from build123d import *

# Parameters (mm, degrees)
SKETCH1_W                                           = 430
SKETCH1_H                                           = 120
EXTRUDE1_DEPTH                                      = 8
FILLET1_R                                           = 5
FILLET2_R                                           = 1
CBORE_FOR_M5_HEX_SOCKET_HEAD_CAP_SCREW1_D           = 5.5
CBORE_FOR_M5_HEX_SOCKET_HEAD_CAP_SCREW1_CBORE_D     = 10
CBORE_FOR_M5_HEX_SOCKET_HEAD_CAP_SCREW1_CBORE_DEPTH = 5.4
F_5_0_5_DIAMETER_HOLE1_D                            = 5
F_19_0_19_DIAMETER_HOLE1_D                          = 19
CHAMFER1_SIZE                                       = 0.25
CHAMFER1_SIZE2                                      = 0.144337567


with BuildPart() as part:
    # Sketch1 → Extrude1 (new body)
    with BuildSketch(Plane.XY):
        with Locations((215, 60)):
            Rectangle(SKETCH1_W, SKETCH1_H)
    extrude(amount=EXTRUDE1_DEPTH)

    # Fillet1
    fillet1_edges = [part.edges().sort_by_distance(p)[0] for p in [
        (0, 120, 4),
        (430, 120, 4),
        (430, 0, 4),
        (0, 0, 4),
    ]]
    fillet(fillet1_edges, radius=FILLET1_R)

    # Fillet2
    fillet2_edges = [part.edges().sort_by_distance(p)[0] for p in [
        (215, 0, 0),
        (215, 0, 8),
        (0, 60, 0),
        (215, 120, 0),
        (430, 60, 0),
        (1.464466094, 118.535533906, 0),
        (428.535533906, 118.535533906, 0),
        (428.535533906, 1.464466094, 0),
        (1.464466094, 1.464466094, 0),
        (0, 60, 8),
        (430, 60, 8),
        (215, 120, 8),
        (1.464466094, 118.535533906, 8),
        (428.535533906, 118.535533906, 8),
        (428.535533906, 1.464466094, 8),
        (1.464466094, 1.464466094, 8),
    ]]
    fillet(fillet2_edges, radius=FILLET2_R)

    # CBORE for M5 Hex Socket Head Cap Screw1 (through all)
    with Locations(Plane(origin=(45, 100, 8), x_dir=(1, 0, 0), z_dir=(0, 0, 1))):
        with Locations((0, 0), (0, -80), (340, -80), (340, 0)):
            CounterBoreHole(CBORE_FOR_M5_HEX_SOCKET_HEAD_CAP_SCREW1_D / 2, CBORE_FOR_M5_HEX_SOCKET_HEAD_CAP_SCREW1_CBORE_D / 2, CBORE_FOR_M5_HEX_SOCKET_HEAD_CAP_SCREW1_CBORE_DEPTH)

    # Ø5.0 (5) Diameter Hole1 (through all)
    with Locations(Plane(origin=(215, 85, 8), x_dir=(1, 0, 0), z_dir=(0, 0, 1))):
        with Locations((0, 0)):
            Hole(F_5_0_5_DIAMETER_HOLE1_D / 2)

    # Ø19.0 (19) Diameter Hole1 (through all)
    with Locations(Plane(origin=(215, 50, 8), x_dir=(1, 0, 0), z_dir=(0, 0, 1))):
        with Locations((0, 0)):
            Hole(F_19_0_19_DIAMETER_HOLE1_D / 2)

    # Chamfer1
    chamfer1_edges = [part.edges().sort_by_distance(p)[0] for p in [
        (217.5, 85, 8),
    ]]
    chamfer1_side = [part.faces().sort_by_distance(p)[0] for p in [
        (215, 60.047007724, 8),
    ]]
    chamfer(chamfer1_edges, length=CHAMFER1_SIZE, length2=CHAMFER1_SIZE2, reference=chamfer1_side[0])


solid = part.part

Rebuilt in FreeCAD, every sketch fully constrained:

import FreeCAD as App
import Part
import Sketcher

V = App.Vector
Q = App.Units.Quantity


def edges_at(feature, points):
    """Names of the edges that pass closest to the given points."""
    edges = feature.Shape.Edges
    near = lambda p: min(range(len(edges)), key=lambda i: edges[i].distToShape(Part.Vertex(*p))[0])
    return sorted({f"Edge{near(p) + 1}" for p in points})


def add_polygon(sketch, points):
    """Adds a closed chain of lines whose ends are joined by coincident constraints."""
    first, n = sketch.GeometryCount, len(points)
    for a, b in zip(points, points[1:] + points[:1]):
        sketch.addGeometry(Part.LineSegment(App.Vector(*a, 0), App.Vector(*b, 0)), False)
    for i in range(n):
        sketch.addConstraint(Sketcher.Constraint("Coincident", first + i, 2, first + (i + 1) % n, 1))

doc = App.newDocument("Part")
body = doc.addObject("PartDesign::Body", "Body")

# Sketch on XY plane
sketch1 = doc.addObject("Sketcher::SketchObject", "Sketch")
body.addObject(sketch1)
sketch1.AttachmentSupport = (doc.XY_Plane, [""])
sketch1.MapMode = "FlatFace"
add_polygon(sketch1, [(0, 120), (0, 0), (430, 0), (430, 120)])  # lines 0-3
sketch1.addConstraint([
    Sketcher.Constraint("Vertical", 0),
    Sketcher.Constraint("Horizontal", 1),
    Sketcher.Constraint("Vertical", 2),
    Sketcher.Constraint("Horizontal", 3),
    Sketcher.Constraint("Coincident", 0, 2, -1, 1),
    Sketcher.Constraint("DistanceX", 1, 1, 1, 2, Q("430 mm")),
    Sketcher.Constraint("DistanceY", 0, 2, 0, 1, Q("120 mm")),
])
pad1 = doc.addObject("PartDesign::Pad", "Pad")
body.addObject(pad1)
pad1.Profile = sketch1
pad1.Length = 8
doc.recompute()

fillet = doc.addObject("PartDesign::Fillet", "Fillet")
body.addObject(fillet)
fillet.Base = (pad1, edges_at(pad1, [
    (0, 120, 4),
    (430, 120, 4),
    (430, 0, 4),
    (0, 0, 4),
]))
fillet.Radius = 5
doc.recompute()

fillet2 = doc.addObject("PartDesign::Fillet", "Fillet001")
body.addObject(fillet2)
fillet2.Base = (fillet, edges_at(fillet, [
    (215, 0, 0),
    (215, 0, 8),
    (0, 60, 0),
    (215, 120, 0),
    (430, 60, 0),
    (1.464, 118.536, 0),
    (428.536, 118.536, 0),
    (428.536, 1.464, 0),
    (1.464, 1.464, 0),
    (0, 60, 8),
    (430, 60, 8),
    (215, 120, 8),
    (1.464, 118.536, 8),
    (428.536, 118.536, 8),
    (428.536, 1.464, 8),
    (1.464, 1.464, 8),
]))
fillet2.Radius = 1

# Sketch on XY plane
sketch2 = doc.addObject("Sketcher::SketchObject", "Sketch001")
body.addObject(sketch2)
sketch2.AttachmentSupport = (doc.XY_Plane, [""])
sketch2.MapMode = "FlatFace"
sketch2.AttachmentOffset = App.Placement(V(0, 0, 8), App.Rotation())
sketch2.addGeometry([
    Part.Circle(V(45, 100, 0), V(0, 0, 1), 2.8),
    Part.Circle(V(45, 20, 0), V(0, 0, 1), 2.8),
    Part.Circle(V(385, 20, 0), V(0, 0, 1), 2.8),
    Part.Circle(V(385, 100, 0), V(0, 0, 1), 2.8),
], False)
sketch2.addConstraint([
    Sketcher.Constraint("Equal", 0, 1),
    Sketcher.Constraint("Equal", 1, 2),
    Sketcher.Constraint("Equal", 2, 3),
    Sketcher.Constraint("Horizontal", 1, 3, 2, 3),
    Sketcher.Constraint("Horizontal", 0, 3, 3, 3),
    Sketcher.Constraint("Vertical", 0, 3, 1, 3),
    Sketcher.Constraint("Vertical", 2, 3, 3, 3),
    Sketcher.Constraint("Diameter", 0, Q("5.5 mm")),
    Sketcher.Constraint("DistanceX", -1, 1, 0, 3, Q("45 mm")),
    Sketcher.Constraint("DistanceY", -1, 1, 0, 3, Q("100 mm")),
    Sketcher.Constraint("DistanceY", -1, 1, 1, 3, Q("20 mm")),
    Sketcher.Constraint("DistanceX", -1, 1, 2, 3, Q("385 mm")),
])
doc.recompute()
hole = doc.addObject("PartDesign::Hole", "Hole")
body.addObject(hole)
hole.Profile = sketch2
hole.ThreadType = "None"
hole.Diameter = 5.5
hole.DepthType = "ThroughAll"
hole.HoleCutType = "Counterbore"
hole.HoleCutDiameter = 10
hole.HoleCutDepth = 5.4

# Sketch on XY plane
sketch3 = doc.addObject("Sketcher::SketchObject", "Sketch002")
body.addObject(sketch3)
sketch3.AttachmentSupport = (doc.XY_Plane, [""])
sketch3.MapMode = "FlatFace"
sketch3.AttachmentOffset = App.Placement(V(0, 0, 8), App.Rotation())
sketch3.addGeometry(Part.Circle(V(215, 85, 0), V(0, 0, 1), 2.5), False)
sketch3.addConstraint([
    Sketcher.Constraint("Diameter", 0, Q("5 mm")),
    Sketcher.Constraint("DistanceX", -1, 1, 0, 3, Q("215 mm")),
    Sketcher.Constraint("DistanceY", -1, 1, 0, 3, Q("85 mm")),
])
doc.recompute()
hole2 = doc.addObject("PartDesign::Hole", "Hole001")
body.addObject(hole2)
hole2.Profile = sketch3
hole2.ThreadType = "None"
hole2.Diameter = 5
hole2.DepthType = "ThroughAll"

# Sketch on XY plane
sketch4 = doc.addObject("Sketcher::SketchObject", "Sketch003")
body.addObject(sketch4)
sketch4.AttachmentSupport = (doc.XY_Plane, [""])
sketch4.MapMode = "FlatFace"
sketch4.AttachmentOffset = App.Placement(V(0, 0, 8), App.Rotation())
sketch4.addGeometry(Part.Circle(V(215, 50, 0), V(0, 0, 1), 10), False)
sketch4.addConstraint([
    Sketcher.Constraint("Diameter", 0, Q("19 mm")),
    Sketcher.Constraint("DistanceX", -1, 1, 0, 3, Q("215 mm")),
    Sketcher.Constraint("DistanceY", -1, 1, 0, 3, Q("50 mm")),
])
doc.recompute()
hole3 = doc.addObject("PartDesign::Hole", "Hole002")
body.addObject(hole3)
hole3.Profile = sketch4
hole3.ThreadType = "None"
hole3.Diameter = 19
hole3.DepthType = "ThroughAll"
doc.recompute()

chamfer = doc.addObject("PartDesign::Chamfer", "Chamfer")
body.addObject(chamfer)
chamfer.Base = (hole3, edges_at(hole3, [(217.5, 85, 8)]))
chamfer.ChamferType = "Two distances"
chamfer.Size = 0.25
chamfer.Size2 = 0.144338

doc.recompute()
